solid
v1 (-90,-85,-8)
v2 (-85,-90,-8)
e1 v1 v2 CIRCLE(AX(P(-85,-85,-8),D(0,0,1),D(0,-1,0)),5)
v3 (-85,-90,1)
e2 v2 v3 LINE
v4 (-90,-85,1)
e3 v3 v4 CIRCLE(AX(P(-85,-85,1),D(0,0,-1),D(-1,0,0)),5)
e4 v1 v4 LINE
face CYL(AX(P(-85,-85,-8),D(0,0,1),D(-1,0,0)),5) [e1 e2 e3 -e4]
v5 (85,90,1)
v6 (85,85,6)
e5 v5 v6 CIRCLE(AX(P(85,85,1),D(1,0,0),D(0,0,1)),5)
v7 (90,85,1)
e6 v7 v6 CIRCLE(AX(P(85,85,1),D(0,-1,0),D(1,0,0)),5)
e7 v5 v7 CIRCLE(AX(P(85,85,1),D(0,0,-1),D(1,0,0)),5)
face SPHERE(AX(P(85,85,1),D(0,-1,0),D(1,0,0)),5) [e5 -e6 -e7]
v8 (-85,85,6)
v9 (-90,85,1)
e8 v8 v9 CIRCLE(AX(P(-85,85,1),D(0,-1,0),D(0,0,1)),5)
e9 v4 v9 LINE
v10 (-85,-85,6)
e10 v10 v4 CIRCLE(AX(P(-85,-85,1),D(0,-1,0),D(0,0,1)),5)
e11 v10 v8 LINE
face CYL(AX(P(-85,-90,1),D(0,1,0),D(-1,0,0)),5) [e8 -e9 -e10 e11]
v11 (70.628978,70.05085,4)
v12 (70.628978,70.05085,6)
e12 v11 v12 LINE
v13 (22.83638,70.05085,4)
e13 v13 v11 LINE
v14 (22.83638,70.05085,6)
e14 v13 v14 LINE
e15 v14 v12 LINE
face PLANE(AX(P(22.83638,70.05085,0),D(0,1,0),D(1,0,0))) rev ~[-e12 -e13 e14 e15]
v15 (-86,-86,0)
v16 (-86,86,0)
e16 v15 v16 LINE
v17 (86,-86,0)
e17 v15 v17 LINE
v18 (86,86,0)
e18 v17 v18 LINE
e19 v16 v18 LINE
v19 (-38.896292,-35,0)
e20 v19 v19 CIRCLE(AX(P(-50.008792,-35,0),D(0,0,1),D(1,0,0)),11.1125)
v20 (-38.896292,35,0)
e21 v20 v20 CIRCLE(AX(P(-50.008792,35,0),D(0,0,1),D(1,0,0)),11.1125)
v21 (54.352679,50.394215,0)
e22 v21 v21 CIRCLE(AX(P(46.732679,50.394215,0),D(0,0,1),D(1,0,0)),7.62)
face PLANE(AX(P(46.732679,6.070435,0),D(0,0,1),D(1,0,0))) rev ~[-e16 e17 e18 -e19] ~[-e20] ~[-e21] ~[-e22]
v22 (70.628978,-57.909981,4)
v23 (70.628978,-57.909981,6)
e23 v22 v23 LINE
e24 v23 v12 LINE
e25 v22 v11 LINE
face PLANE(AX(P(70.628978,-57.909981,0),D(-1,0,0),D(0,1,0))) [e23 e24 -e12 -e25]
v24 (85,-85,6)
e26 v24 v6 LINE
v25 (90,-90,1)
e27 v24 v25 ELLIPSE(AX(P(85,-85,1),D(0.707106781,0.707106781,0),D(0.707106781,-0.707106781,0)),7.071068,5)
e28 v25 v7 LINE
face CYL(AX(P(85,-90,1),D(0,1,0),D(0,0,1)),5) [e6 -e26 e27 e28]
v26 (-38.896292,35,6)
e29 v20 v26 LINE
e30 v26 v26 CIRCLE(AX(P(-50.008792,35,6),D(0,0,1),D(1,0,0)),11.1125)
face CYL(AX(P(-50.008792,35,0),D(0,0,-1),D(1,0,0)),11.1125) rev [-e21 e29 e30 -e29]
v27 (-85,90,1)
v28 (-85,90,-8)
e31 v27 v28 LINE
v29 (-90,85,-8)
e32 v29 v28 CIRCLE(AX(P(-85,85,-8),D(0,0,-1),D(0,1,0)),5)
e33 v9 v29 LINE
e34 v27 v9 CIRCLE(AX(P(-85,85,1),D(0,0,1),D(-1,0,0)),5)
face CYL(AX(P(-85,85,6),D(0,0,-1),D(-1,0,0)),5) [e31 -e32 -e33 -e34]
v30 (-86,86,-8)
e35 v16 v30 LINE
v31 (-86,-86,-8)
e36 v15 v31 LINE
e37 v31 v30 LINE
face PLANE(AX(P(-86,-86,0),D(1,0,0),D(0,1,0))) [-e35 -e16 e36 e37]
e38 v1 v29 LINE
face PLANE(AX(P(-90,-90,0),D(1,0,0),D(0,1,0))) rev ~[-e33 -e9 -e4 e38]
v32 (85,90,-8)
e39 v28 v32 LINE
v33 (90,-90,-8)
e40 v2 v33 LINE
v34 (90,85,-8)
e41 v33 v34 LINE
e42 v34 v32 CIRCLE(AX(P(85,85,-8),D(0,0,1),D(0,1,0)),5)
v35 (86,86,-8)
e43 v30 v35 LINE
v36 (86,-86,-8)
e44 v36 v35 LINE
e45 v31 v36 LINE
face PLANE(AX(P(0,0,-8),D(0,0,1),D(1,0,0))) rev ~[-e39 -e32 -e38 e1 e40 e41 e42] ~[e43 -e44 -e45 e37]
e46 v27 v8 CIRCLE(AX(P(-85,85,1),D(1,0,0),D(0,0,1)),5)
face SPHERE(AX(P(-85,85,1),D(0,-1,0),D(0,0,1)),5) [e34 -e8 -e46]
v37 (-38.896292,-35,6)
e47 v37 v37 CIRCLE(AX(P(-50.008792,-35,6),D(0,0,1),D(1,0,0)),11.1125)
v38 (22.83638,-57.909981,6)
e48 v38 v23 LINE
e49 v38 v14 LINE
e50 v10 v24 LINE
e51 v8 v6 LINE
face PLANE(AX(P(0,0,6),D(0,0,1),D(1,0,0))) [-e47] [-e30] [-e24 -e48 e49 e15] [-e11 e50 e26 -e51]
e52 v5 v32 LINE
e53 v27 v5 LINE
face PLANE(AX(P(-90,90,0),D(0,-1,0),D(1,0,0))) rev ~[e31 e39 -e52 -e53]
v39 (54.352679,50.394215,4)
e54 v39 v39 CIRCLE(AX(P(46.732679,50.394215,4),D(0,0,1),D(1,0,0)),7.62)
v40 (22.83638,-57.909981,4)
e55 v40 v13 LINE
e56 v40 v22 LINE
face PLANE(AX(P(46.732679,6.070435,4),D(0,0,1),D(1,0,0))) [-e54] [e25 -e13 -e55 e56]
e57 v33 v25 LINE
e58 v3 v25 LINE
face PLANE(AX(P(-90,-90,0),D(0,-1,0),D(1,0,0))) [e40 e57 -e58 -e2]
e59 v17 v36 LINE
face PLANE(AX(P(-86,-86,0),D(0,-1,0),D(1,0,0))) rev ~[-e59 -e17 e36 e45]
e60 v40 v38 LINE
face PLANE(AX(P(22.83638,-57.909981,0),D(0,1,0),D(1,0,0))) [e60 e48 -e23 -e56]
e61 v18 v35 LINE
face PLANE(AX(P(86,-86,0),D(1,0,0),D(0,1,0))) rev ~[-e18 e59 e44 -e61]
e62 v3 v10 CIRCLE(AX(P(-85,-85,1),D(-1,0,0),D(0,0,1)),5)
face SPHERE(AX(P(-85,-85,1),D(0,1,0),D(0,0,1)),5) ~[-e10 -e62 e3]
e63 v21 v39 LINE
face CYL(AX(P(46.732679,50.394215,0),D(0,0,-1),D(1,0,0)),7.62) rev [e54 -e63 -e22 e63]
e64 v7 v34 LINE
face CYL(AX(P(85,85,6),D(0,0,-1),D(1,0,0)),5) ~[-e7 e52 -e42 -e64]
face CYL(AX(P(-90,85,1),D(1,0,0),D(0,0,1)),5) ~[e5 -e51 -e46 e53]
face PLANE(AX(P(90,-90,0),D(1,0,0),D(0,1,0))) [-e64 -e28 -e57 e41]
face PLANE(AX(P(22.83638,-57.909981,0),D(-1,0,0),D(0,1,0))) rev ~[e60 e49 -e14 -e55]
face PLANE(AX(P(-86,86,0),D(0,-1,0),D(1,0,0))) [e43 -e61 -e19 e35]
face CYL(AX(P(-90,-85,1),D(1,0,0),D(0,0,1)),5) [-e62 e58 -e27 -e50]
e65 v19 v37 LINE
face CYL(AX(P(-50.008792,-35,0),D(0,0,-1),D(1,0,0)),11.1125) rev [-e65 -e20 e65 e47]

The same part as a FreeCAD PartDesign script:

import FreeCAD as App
import Part
import Sketcher
from FreeCAD import Vector
Q = App.Units.Quantity


def edges_at(feature, points):
    """Names of the edges that pass closest to the given points."""
    edges = feature.Shape.Edges
    near = lambda p: min(range(len(edges)), key=lambda i: edges[i].distToShape(Part.Vertex(*p))[0])
    return sorted({f"Edge{near(p) + 1}" for p in points})


def add_polygon(sketch, points):
    """Adds a closed chain of lines whose ends are joined by coincident constraints."""
    first, n = sketch.GeometryCount, len(points)
    for a, b in zip(points, points[1:] + points[:1]):
        sketch.addGeometry(Part.LineSegment(App.Vector(*a, 0), App.Vector(*b, 0)), False)
    for i in range(n):
        sketch.addConstraint(Sketcher.Constraint("Coincident", first + i, 2, first + (i + 1) % n, 1))

doc = App.newDocument("Part")
body = doc.addObject("PartDesign::Body", "Body")

sketch1 = body.newObject("Sketcher::SketchObject", "Sketch")
sketch1.AttachmentSupport = (doc.getObject("XY_Plane"), [""])
sketch1.MapMode = "FlatFace"
add_polygon(sketch1, [(-90, 90), (-90, -90), (90, -90), (90, 90)])
sketch1.addGeometry(Part.Circle(Vector(-50, -35, 0), Vector(0, 0, 1), 11), False)
sketch1.addGeometry(Part.Circle(Vector(-50, 35, 0), Vector(0, 0, 1), 11), False)
add_polygon(sketch1, [(71, -58), (23, -58), (23, 70), (71, 70)])
sketch1.addConstraint(Sketcher.Constraint("Vertical", 0))
sketch1.addConstraint(Sketcher.Constraint("Horizontal", 1))
sketch1.addConstraint(Sketcher.Constraint("Vertical", 2))
sketch1.addConstraint(Sketcher.Constraint("Horizontal", 3))
sketch1.addConstraint(Sketcher.Constraint("Horizontal", 6))
sketch1.addConstraint(Sketcher.Constraint("Vertical", 7))
sketch1.addConstraint(Sketcher.Constraint("Horizontal", 8))
sketch1.addConstraint(Sketcher.Constraint("Vertical", 9))
sketch1.addConstraint(Sketcher.Constraint("Equal", 4, 5))
sketch1.addConstraint(Sketcher.Constraint("Symmetric", 0, 2, 2, 2, -1, 1))
sketch1.addConstraint(Sketcher.Constraint("Symmetric", 4, 3, 5, 3, -1))
sketch1.addConstraint(Sketcher.Constraint("Equal", 3, 0))
sketch1.addConstraint(Sketcher.Constraint("DistanceX", 1, 1, 1, 2, Q("180 mm")))
sketch1.addConstraint(Sketcher.Constraint("Diameter", 4, Q("22.225 mm")))
sketch1.addConstraint(Sketcher.Constraint("DistanceY", 4, 3, -1, 1, Q("35 mm")))
sketch1.addConstraint(Sketcher.Constraint("DistanceX", 6, 2, 6, 1, Q("47.792598 mm")))
sketch1.addConstraint(Sketcher.Constraint("DistanceY", 7, 1, 7, 2, Q("127.960831 mm")))
sketch1.addConstraint(Sketcher.Constraint("DistanceX", -1, 1, 6, 2, Q("22.83638 mm")))
sketch1.addConstraint(Sketcher.Constraint("DistanceY", 6, 2, -1, 1, Q("57.909981 mm")))
sketch1.addConstraint(Sketcher.Constraint("DistanceX", 4, 3, 1, 2, Q("140.008792 mm")))
pad1 = body.newObject("PartDesign::Pad", "Pad")
pad1.Profile = sketch1
pad1.Length = 6

sketch2 = body.newObject("Sketcher::SketchObject", "Sketch001")
sketch2.AttachmentSupport = (doc.getObject("XY_Plane"), [""])
sketch2.MapMode = "FlatFace"
add_polygon(sketch2, [(23, 70), (23, -58), (71, -58), (71, 70)])
sketch2.addGeometry(Part.Circle(Vector(47, 50, 0), Vector(0, 0, 1), 8), False)
sketch2.addConstraint(Sketcher.Constraint("Vertical", 0))
sketch2.addConstraint(Sketcher.Constraint("Horizontal", 1))
sketch2.addConstraint(Sketcher.Constraint("Vertical", 2))
sketch2.addConstraint(Sketcher.Constraint("Horizontal", 3))
sketch2.addConstraint(Sketcher.Constraint("Diameter", 4, Q("15.24 mm")))
sketch2.addConstraint(Sketcher.Constraint("DistanceX", 1, 1, 1, 2, Q("47.792598 mm")))
sketch2.addConstraint(Sketcher.Constraint("DistanceY", 0, 2, 0, 1, Q("127.960831 mm")))
sketch2.addConstraint(Sketcher.Constraint("DistanceX", 0, 2, 4, 3, Q("23.896299 mm")))
sketch2.addConstraint(Sketcher.Constraint("DistanceX", -1, 1, 4, 3, Q("46.732679 mm")))
sketch2.addConstraint(Sketcher.Constraint("DistanceY", 0, 2, -1, 1, Q("57.909981 mm")))
sketch2.addConstraint(Sketcher.Constraint("DistanceY", -1, 1, 4, 3, Q("50.394215 mm")))
pad2 = body.newObject("PartDesign::Pad", "Pad001")
pad2.Profile = sketch2
pad2.Length = 4

sketch3 = body.newObject("Sketcher::SketchObject", "Sketch002")
sketch3.AttachmentSupport = (doc.getObject("XY_Plane"), [""])
sketch3.MapMode = "FlatFace"
add_polygon(sketch3, [(-90, 90), (-90, -90), (90, -90), (90, 90)])
add_polygon(sketch3, [(86, -86), (-86, -86), (-86, 86), (86, 86)])
sketch3.addConstraint(Sketcher.Constraint("Vertical", 0))
sketch3.addConstraint(Sketcher.Constraint("Horizontal", 1))
sketch3.addConstraint(Sketcher.Constraint("Vertical", 2))
sketch3.addConstraint(Sketcher.Constraint("Horizontal", 3))
sketch3.addConstraint(Sketcher.Constraint("Horizontal", 4))
sketch3.addConstraint(Sketcher.Constraint("Vertical", 5))
sketch3.addConstraint(Sketcher.Constraint("Horizontal", 6))
sketch3.addConstraint(Sketcher.Constraint("Vertical", 7))
sketch3.addConstraint(Sketcher.Constraint("Symmetric", 0, 2, 2, 2, -1, 1))
sketch3.addConstraint(Sketcher.Constraint("Symmetric", 4, 2, 6, 2, -1, 1))
sketch3.addConstraint(Sketcher.Constraint("Equal", 3, 0))
sketch3.addConstraint(Sketcher.Constraint("Equal", 6, 5))
sketch3.addConstraint(Sketcher.Constraint("DistanceX", 1, 1, 1, 2, Q("180 mm")))
sketch3.addConstraint(Sketcher.Constraint("DistanceX", 4, 2, 4, 1, Q("172 mm")))
pad3 = body.newObject("PartDesign::Pad", "Pad002")
pad3.Profile = sketch3
pad3.Length = 8
pad3.Reversed = True
doc.recompute()

fillet = body.newObject("PartDesign::Fillet", "Fillet")
fillet.Base = (pad3, edges_at(pad3, [
    (-90, 0, 6),
    (0, -90, 6),
    (90, 0, 6),
    (90, 90, -1),
    (0, 90, 6),
    (-90, 90, -1),
    (-90, -90, -1),
]))
fillet.Radius = 5

doc.recompute()
